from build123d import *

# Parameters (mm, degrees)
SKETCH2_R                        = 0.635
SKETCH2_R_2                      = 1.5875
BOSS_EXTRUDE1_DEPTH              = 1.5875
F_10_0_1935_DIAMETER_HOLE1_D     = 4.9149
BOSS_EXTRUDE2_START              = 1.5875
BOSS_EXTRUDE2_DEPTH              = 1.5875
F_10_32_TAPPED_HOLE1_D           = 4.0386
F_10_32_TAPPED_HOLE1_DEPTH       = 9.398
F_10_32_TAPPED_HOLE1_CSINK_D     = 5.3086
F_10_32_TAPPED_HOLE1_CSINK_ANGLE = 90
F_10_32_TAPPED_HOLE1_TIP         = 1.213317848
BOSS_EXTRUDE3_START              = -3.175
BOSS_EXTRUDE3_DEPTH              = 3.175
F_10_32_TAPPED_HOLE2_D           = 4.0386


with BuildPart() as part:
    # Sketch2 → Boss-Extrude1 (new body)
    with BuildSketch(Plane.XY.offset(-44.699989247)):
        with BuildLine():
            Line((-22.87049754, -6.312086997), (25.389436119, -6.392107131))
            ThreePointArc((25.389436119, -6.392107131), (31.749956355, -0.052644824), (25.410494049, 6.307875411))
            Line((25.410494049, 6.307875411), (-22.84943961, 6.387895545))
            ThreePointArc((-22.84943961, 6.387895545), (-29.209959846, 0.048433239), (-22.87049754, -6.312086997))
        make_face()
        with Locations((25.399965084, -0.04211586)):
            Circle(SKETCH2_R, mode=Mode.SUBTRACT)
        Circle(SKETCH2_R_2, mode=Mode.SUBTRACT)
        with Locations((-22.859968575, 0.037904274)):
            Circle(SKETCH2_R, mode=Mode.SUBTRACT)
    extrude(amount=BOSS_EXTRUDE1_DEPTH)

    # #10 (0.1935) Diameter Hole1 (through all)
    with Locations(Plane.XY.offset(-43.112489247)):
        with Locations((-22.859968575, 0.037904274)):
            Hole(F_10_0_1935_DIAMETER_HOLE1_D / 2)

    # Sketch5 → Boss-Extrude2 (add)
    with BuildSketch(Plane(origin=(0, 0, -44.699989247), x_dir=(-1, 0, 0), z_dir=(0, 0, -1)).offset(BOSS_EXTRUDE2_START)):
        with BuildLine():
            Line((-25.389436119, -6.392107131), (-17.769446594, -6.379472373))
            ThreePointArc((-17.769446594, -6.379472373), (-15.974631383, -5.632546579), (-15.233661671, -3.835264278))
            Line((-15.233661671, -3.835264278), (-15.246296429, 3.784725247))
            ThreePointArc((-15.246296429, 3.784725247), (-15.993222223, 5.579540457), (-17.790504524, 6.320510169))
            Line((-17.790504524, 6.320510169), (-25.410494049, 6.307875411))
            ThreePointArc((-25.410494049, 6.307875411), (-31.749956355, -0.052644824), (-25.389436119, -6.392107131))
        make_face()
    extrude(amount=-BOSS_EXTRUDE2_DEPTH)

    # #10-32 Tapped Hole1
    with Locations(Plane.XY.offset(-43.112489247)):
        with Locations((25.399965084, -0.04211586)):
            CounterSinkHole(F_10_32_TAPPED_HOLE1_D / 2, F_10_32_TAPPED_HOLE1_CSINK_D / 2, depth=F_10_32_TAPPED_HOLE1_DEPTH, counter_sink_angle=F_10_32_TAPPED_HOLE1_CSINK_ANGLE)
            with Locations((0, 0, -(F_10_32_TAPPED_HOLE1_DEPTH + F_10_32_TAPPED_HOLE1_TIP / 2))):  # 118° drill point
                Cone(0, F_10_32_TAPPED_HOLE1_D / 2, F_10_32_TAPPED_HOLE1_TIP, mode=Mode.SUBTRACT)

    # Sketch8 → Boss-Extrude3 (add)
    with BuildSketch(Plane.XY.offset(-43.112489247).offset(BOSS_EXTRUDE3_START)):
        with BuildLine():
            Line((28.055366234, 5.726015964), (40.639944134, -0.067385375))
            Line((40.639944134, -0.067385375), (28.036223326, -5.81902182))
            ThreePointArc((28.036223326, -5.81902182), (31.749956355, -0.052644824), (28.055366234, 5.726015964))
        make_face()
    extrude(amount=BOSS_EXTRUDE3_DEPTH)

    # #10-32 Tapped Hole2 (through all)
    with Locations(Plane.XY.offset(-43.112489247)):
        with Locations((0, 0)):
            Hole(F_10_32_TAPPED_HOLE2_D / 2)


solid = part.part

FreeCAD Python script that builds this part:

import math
import FreeCAD as App
import Part
import Sketcher

V = App.Vector
Q = App.Units.Quantity

doc = App.newDocument("Part")
body = doc.addObject("PartDesign::Body", "Body")

sketch1 = body.newObject("Sketcher::SketchObject", "Sketch")
sketch1.AttachmentSupport = (doc.getObject("XY_Plane"), [""])
sketch1.MapMode = "FlatFace"
sketch1.AttachmentOffset = App.Placement(V(0, 0, -44.699989), App.Rotation())
sketch1.addGeometry(Part.LineSegment(V(-22.9, -6.3, 0), V(25.4, -6.4, 0)), False)
sketch1.addGeometry(Part.ArcOfCircle(Part.Circle(V(25.4, 0, 0), V(0, 0, 1), 6.3), math.radians(-90), math.radians(90)), False)
sketch1.addGeometry(Part.LineSegment(V(25.4, 6.3, 0), V(-22.8, 6.4, 0)), False)
sketch1.addGeometry(Part.ArcOfCircle(Part.Circle(V(-22.9, 0, 0), V(0, 0, 1), 6.3), math.radians(90), math.radians(270)), False)
sketch1.addGeometry(Part.Circle(V(0, 0, 0), V(0, 0, 1), 1.6), False)
sketch1.addGeometry(Part.Circle(V(25.4, 0, 0), V(0, 0, 1), 0.6), False)
sketch1.addGeometry(Part.Circle(V(-22.9, 0, 0), V(0, 0, 1), 0.6), False)
sketch1.addConstraint(Sketcher.Constraint("Tangent", 0, 2, 1, 1))
sketch1.addConstraint(Sketcher.Constraint("Tangent", 1, 2, 2, 1))
sketch1.addConstraint(Sketcher.Constraint("Tangent", 2, 2, 3, 1))
sketch1.addConstraint(Sketcher.Constraint("Tangent", 3, 2, 0, 1))
sketch1.addConstraint(Sketcher.Constraint("Coincident", 4, 3, -1, 1))
sketch1.addConstraint(Sketcher.Constraint("Coincident", 5, 3, 1, 3))
sketch1.addConstraint(Sketcher.Constraint("Coincident", 6, 3, 3, 3))
sketch1.addConstraint(Sketcher.Constraint("Equal", 1, 3))
sketch1.addConstraint(Sketcher.Constraint("Equal", 5, 6))
sketch1.addConstraint(Sketcher.Constraint("Diameter", 5, Q("0.05 in")))
sketch1.addConstraint(Sketcher.Constraint("Radius", 1, Q("0.25 in")))
sketch1.addConstraint(Sketcher.Constraint("Diameter", 4, Q("0.125 in")))
sketch1.addConstraint(Sketcher.Constraint("Distance", 0, Q("1.9 in")))
sketch1.addConstraint(Sketcher.Constraint("DistanceX", 3, 3, -1, 1, 22.859969))
sketch1.addConstraint(Sketcher.Constraint("DistanceX", 2, 2, -1, 1, 22.84944))
sketch1.addConstraint(Sketcher.Constraint("DistanceY", 1, 3, -1, 1, 0.042116))
pad1 = body.newObject("PartDesign::Pad", "Pad")
pad1.Profile = sketch1
pad1.Length = Q("0.0625 in")

sketch2 = body.newObject("Sketcher::SketchObject", "Sketch001")
sketch2.AttachmentSupport = (doc.getObject("XY_Plane"), [""])
sketch2.MapMode = "FlatFace"
sketch2.AttachmentOffset = App.Placement(V(0, 0, -43.112489), App.Rotation())
sketch2.addGeometry(Part.Circle(V(-22.9, 0, 0), V(0, 0, 1), 2.5), False)
sketch2.addConstraint(Sketcher.Constraint("Diameter", 0, Q("0.1935 in")))
sketch2.addConstraint(Sketcher.Constraint("DistanceX", 0, 3, -1, 1, 22.859969))
sketch2.addConstraint(Sketcher.Constraint("DistanceY", -1, 1, 0, 3, 0.037904))
doc.recompute()
hole = body.newObject("PartDesign::Hole", "Hole")
hole.Profile = sketch2
hole.ThreadType = "None"
hole.Diameter = Q("0.1935 in")
hole.DepthType = "ThroughAll"

sketch3 = body.newObject("Sketcher::SketchObject", "Sketch002")
sketch3.AttachmentSupport = (doc.getObject("XY_Plane"), [""])
sketch3.MapMode = "FlatFace"
sketch3.AttachmentOffset = App.Placement(V(0, 0, -46.287489), App.Rotation())
sketch3.addGeometry(Part.LineSegment(V(25.4, -6.4, 0), V(17.8, -6.4, 0)), False)
sketch3.addGeometry(Part.ArcOfCircle(Part.Circle(V(17.8, -3.8, 0), V(0, 0, 1), 2.5), math.radians(180), math.radians(270)), False)
sketch3.addGeometry(Part.LineSegment(V(15.2, -3.8, 0), V(15.2, 3.8, 0)), False)
sketch3.addGeometry(Part.ArcOfCircle(Part.Circle(V(17.8, 3.8, 0), V(0, 0, 1), 2.5), math.radians(90), math.radians(180)), False)
sketch3.addGeometry(Part.LineSegment(V(17.8, 6.3, 0), V(25.4, 6.3, 0)), False)
sketch3.addGeometry(Part.ArcOfCircle(Part.Circle(V(25.4, 0, 0), V(0, 0, 1), 6.3), math.radians(-90), math.radians(90)), False)
sketch3.addConstraint(Sketcher.Constraint("Tangent", 0, 2, 1, 2))
sketch3.addConstraint(Sketcher.Constraint("Tangent", 1, 1, 2, 1))
sketch3.addConstraint(Sketcher.Constraint("Tangent", 2, 2, 3, 2))
sketch3.addConstraint(Sketcher.Constraint("Tangent", 3, 1, 4, 1))
sketch3.addConstraint(Sketcher.Constraint("Tangent", 4, 2, 5, 2))
sketch3.addConstraint(Sketcher.Constraint("Tangent", 5, 1, 0, 1))
sketch3.addConstraint(Sketcher.Constraint("Equal", 1, 3))
sketch3.addConstraint(Sketcher.Constraint("Perpendicular", 0, 2))
sketch3.addConstraint(Sketcher.Constraint("Perpendicular", 2, 4))
sketch3.addConstraint(Sketcher.Constraint("Equal", 0, 2))
sketch3.addConstraint(Sketcher.Constraint("Radius", 1, Q("0.1 in")))
sketch3.addConstraint(Sketcher.Constraint("Radius", 5, Q("0.25 in")))
sketch3.addConstraint(Sketcher.Constraint("DistanceY", 1, 3, 2, 2, 7.624201))
sketch3.addConstraint(Sketcher.Constraint("DistanceX", -1, 1, 1, 3, 17.773658))
sketch3.addConstraint(Sketcher.Constraint("DistanceY", -1, 1, 3, 1, 6.32051))
pad2 = body.newObject("PartDesign::Pad", "Pad001")
pad2.Profile = sketch3
pad2.Length = Q("0.0625 in")

sketch4 = body.newObject("Sketcher::SketchObject", "Sketch003")
sketch4.AttachmentSupport = (doc.getObject("XY_Plane"), [""])
sketch4.MapMode = "FlatFace"
sketch4.AttachmentOffset = App.Placement(V(0, 0, -43.112489), App.Rotation())
sketch4.addGeometry(Part.Circle(V(25.4, 0, 0), V(0, 0, 1), 2), False)
sketch4.addConstraint(Sketcher.Constraint("Diameter", 0, Q("0.159 in")))
sketch4.addConstraint(Sketcher.Constraint("DistanceX", -1, 1, 0, 3, 25.399965))
sketch4.addConstraint(Sketcher.Constraint("DistanceY", 0, 3, -1, 1, 0.042116))
doc.recompute()
hole2 = body.newObject("PartDesign::Hole", "Hole001")
hole2.Profile = sketch4
hole2.ThreadType = "None"
hole2.Diameter = Q("0.159 in")
hole2.DepthType = "Dimension"
hole2.Depth = Q("0.37 in")
hole2.DrillPoint = "Angled"
hole2.DrillPointAngle = 118
hole2.HoleCutType = "Countersink"
hole2.HoleCutDiameter = Q("0.209 in")
hole2.HoleCutCountersinkAngle = 90

sketch5 = body.newObject("Sketcher::SketchObject", "Sketch004")
sketch5.AttachmentSupport = (doc.getObject("XY_Plane"), [""])
sketch5.MapMode = "FlatFace"
sketch5.AttachmentOffset = App.Placement(V(0, 0, -46.287489), App.Rotation())
sketch5.addGeometry(Part.LineSegment(V(41, 0, 0), V(28, 6, 0)), False)
sketch5.addGeometry(Part.ArcOfCircle(Part.Circle(V(25, 0, 0), V(0, 0, 1), 6), math.radians(-65), math.radians(65)), False)
sketch5.addGeometry(Part.LineSegment(V(28, -6, 0), V(41, 0, 0)), False)
sketch5.addConstraint(Sketcher.Constraint("Tangent", 0, 2, 1, 2))
sketch5.addConstraint(Sketcher.Constraint("Tangent", 1, 1, 2, 1))
sketch5.addConstraint(Sketcher.Constraint("Coincident", 2, 2, 0, 1))
sketch5.addConstraint(Sketcher.Constraint("Radius", 1, Q("0.25 in")))
sketch5.addConstraint(Sketcher.Constraint("DistanceX", 1, 3, 0, 2, 2.655401))
sketch5.addConstraint(Sketcher.Constraint("DistanceY", 2, 2, 0, 2, 5.793401))
sketch5.addConstraint(Sketcher.Constraint("DistanceY", 1, 1, -1, 1, 5.819022))
sketch5.addConstraint(Sketcher.Constraint("DistanceX", -1, 1, 1, 3, 25.399965))
pad3 = body.newObject("PartDesign::Pad", "Pad002")
pad3.Profile = sketch5
pad3.Length = Q("0.125 in")

sketch6 = body.newObject("Sketcher::SketchObject", "Sketch005")
sketch6.AttachmentSupport = (doc.getObject("XY_Plane"), [""])
sketch6.MapMode = "FlatFace"
sketch6.AttachmentOffset = App.Placement(V(0, 0, -43.112489), App.Rotation())
sketch6.addGeometry(Part.Circle(V(0, 0, 0), V(0, 0, 1), 2), False)
sketch6.addConstraint(Sketcher.Constraint("Coincident", 0, 3, -1, 1))
sketch6.addConstraint(Sketcher.Constraint("Diameter", 0, Q("0.159 in")))
doc.recompute()
hole3 = body.newObject("PartDesign::Hole", "Hole002")
hole3.Profile = sketch6
hole3.ThreadType = "None"
hole3.Diameter = Q("0.159 in")
hole3.DepthType = "ThroughAll"

doc.recompute()
